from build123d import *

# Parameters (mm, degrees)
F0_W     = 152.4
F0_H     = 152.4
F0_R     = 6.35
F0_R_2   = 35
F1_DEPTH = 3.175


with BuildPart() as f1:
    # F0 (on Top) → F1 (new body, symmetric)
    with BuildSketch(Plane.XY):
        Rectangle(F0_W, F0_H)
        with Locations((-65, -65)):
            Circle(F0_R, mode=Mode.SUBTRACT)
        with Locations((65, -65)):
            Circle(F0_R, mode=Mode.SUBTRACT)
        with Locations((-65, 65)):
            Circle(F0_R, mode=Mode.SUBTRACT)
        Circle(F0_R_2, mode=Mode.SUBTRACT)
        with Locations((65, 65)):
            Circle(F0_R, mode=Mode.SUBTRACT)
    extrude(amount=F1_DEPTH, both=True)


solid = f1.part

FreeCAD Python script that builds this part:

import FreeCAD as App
import Part
import Sketcher
Q = App.Units.Quantity

doc = App.newDocument("Part")
params = doc.addObject("Spreadsheet::Sheet", "Params")
for row, (alias, value) in enumerate([
    ("sketch1_diameter", "0.5 in"),
    ("sketch1_width", "6 in"),
    ("pad1_length", "0.25 in"),
], start=1):
    params.set(f"A{row}", alias)
    params.set(f"B{row}", "=" + value)
    params.setAlias(f"B{row}", alias)

body = doc.addObject("PartDesign::Body", "Body")

# Sketch on XY plane
sketch1 = body.newObject("Sketcher::SketchObject", "Sketch")
sketch1.AttachmentSupport = (doc.getObject("XY_Plane"), [""])
sketch1.MapMode = "FlatFace"
sketch1.addGeometry([
    Part.LineSegment(App.Vector(-76, 76, 0), App.Vector(-76, -76, 0)),  # 0
    Part.LineSegment(App.Vector(-76, -76, 0), App.Vector(76, -76, 0)),  # 1
    Part.LineSegment(App.Vector(76, -76, 0), App.Vector(76, 76, 0)),  # 2
    Part.LineSegment(App.Vector(76, 76, 0), App.Vector(-76, 76, 0)),  # 3
    Part.Circle(App.Vector(-65, -65, 0), App.Vector(0, 0, 1), 6),  # 4
    Part.Circle(App.Vector(65, -65, 0), App.Vector(0, 0, 1), 6),  # 5
    Part.Circle(App.Vector(-65, 65, 0), App.Vector(0, 0, 1), 6),  # 6
    Part.Circle(App.Vector(0, 0, 0), App.Vector(0, 0, 1), 35),  # 7
    Part.Circle(App.Vector(65, 65, 0), App.Vector(0, 0, 1), 6),  # 8
], False)
sketch1.addConstraint([
    Sketcher.Constraint("Coincident", 0, 2, 1, 1),
    Sketcher.Constraint("Coincident", 1, 2, 2, 1),
    Sketcher.Constraint("Coincident", 2, 2, 3, 1),
    Sketcher.Constraint("Coincident", 3, 2, 0, 1),
    Sketcher.Constraint("Vertical", 0),
    Sketcher.Constraint("Horizontal", 1),
    Sketcher.Constraint("Vertical", 2),
    Sketcher.Constraint("Horizontal", 3),
    Sketcher.Constraint("Coincident", 7, 3, -1, 1),
    Sketcher.Constraint("Equal", 4, 5),
    Sketcher.Constraint("Equal", 5, 6),
    Sketcher.Constraint("Equal", 6, 8),
    Sketcher.Constraint("Symmetric", 5, 3, 6, 3, -1, 1),
    Sketcher.Constraint("Symmetric", 4, 3, 8, 3, -1, 1),
    Sketcher.Constraint("Symmetric", 0, 2, 2, 2, -1, 1),
    Sketcher.Constraint("Symmetric", 4, 3, 5, 3, -2),
    Sketcher.Constraint("Equal", 3, 0),
    Sketcher.Constraint("Diameter", 4, Q("0.5 in")),
    Sketcher.Constraint("DistanceX", 1, 1, 1, 2, Q("6 in")),
    Sketcher.Constraint("Diameter", 7, 70.0),
    Sketcher.Constraint("DistanceX", 4, 3, -1, 1, 65.0),
    Sketcher.Constraint("DistanceY", 4, 3, -1, 1, 65.0),
])
sketch1.setExpression("Constraints[17]", "Params.sketch1_diameter")
sketch1.setExpression("Constraints[18]", "Params.sketch1_width")
pad1 = body.newObject("PartDesign::Pad", "Pad")
pad1.Profile = sketch1
pad1.setExpression("Length", "Params.pad1_length")
pad1.Midplane = True

doc.recompute()
